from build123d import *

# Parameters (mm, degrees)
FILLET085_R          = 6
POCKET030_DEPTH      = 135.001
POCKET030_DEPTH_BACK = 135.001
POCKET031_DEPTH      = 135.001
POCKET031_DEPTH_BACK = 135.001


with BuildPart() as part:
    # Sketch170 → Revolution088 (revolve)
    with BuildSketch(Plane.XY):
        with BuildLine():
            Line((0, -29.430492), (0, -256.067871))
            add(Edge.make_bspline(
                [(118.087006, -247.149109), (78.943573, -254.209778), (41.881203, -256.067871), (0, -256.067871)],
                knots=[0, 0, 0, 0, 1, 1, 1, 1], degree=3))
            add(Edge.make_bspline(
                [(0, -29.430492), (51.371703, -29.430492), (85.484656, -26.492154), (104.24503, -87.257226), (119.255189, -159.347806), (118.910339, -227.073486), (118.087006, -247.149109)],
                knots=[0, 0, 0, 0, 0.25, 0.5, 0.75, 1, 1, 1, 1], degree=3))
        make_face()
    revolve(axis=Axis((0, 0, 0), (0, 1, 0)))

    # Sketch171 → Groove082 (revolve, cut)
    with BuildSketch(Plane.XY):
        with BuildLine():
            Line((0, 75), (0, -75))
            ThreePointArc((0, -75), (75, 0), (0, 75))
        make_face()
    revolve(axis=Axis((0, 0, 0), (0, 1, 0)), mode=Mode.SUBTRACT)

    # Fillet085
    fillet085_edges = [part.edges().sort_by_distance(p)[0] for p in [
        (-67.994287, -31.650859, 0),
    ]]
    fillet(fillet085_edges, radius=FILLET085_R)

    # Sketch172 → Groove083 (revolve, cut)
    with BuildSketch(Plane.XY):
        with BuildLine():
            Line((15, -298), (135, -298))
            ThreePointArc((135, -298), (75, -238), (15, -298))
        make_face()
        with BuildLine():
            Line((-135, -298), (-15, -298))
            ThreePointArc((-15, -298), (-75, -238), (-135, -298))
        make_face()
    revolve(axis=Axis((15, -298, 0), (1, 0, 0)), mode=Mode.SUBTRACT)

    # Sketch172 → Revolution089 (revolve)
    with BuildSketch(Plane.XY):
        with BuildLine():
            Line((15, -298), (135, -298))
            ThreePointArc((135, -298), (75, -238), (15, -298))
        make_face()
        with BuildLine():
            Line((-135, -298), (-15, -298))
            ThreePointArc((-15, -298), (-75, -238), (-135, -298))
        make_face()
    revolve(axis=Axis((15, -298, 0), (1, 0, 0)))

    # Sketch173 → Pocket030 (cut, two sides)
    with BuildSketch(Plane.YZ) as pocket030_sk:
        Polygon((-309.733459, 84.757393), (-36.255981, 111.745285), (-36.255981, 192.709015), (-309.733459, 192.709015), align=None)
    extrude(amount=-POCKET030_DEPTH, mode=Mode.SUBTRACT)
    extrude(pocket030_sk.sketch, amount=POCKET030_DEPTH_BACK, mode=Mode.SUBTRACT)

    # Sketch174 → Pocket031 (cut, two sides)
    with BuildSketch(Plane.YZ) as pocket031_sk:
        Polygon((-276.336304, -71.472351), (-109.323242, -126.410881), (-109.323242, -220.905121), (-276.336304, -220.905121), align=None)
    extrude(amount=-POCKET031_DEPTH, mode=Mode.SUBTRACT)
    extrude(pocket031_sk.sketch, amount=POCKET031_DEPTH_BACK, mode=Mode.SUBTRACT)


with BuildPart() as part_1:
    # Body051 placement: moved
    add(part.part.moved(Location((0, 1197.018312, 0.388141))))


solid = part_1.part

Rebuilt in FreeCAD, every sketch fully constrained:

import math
import FreeCAD as App
import Part
import Sketcher
Q = App.Units.Quantity


def edges_at(feature, points):
    """Names of the edges that pass closest to the given points."""
    edges = feature.Shape.Edges
    near = lambda p: min(range(len(edges)), key=lambda i: edges[i].distToShape(Part.Vertex(*p))[0])
    return sorted({f"Edge{near(p) + 1}" for p in points})


def add_polygon(sketch, points):
    """Adds a closed chain of lines whose ends are joined by coincident constraints."""
    first, n = sketch.GeometryCount, len(points)
    for a, b in zip(points, points[1:] + points[:1]):
        sketch.addGeometry(Part.LineSegment(App.Vector(*a, 0), App.Vector(*b, 0)), False)
    for i in range(n):
        sketch.addConstraint(Sketcher.Constraint("Coincident", first + i, 2, first + (i + 1) % n, 1))

doc = App.newDocument("Part")
body = doc.addObject("PartDesign::Body", "Body")

sketch1 = body.newObject("Sketcher::SketchObject", "Sketch")
sketch1.AttachmentSupport = (doc.getObject("XY_Plane"), [""])
sketch1.MapMode = "FlatFace"
sketch1.addGeometry([
    Part.LineSegment(App.Vector(0, -29.430492, 0), App.Vector(0, -256.067871, 0)),
    Part.BSplineCurve([App.Vector(118.087006, -247.149109, 0), App.Vector(78.943573, -254.209778, 0), App.Vector(41.881203, -256.067871, 0), App.Vector(0, -256.067871, 0)], [4, 4], [0, 1], False, 3, [1, 1, 1, 1], False),
    Part.BSplineCurve([App.Vector(0, -29.430492, 0), App.Vector(51.371703, -29.430492, 0), App.Vector(85.484656, -26.492154, 0), App.Vector(104.24503, -87.257226, 0), App.Vector(119.255189, -159.347806, 0), App.Vector(118.910339, -227.073486, 0), App.Vector(118.087006, -247.149109, 0)], [4, 1, 1, 1, 4], [0, 0.25, 0.5, 0.75, 1], False, 3, [1, 1, 1, 1, 1, 1, 1], False),
], False)
sketch1.addConstraint([
    Sketcher.Constraint("Block", 1),
    Sketcher.Constraint("Block", 2),
    Sketcher.Constraint("Coincident", 0, 2, 1, 2),
    Sketcher.Constraint("Coincident", 2, 1, 0, 1),
])
revolution = body.newObject("PartDesign::Revolution", "Revolution")
revolution.Profile = sketch1
revolution.ReferenceAxis = (sketch1, ["V_Axis"])
revolution.Angle = 360

sketch2 = body.newObject("Sketcher::SketchObject", "Sketch001")
sketch2.AttachmentSupport = (doc.getObject("XY_Plane"), [""])
sketch2.MapMode = "FlatFace"
sketch2.addGeometry([
    Part.LineSegment(App.Vector(0, 75, 0), App.Vector(0, -75, 0)),
    Part.ArcOfCircle(Part.Circle(App.Vector(0, 0, 0), App.Vector(0, 0, 1), 75), math.radians(-90), math.radians(90)),
], False)
sketch2.addConstraint([
    Sketcher.Constraint("Coincident", 0, 1, 1, 2),
    Sketcher.Constraint("Coincident", 1, 1, 0, 2),
    Sketcher.Constraint("Vertical", 0),
    Sketcher.Constraint("Coincident", 1, 3, -1, 1),
    Sketcher.Constraint("PointOnObject", 0, 1, -2),
    Sketcher.Constraint("Radius", 1, Q("75 mm")),
])
groove = body.newObject("PartDesign::Groove", "Groove")
groove.Profile = sketch2
groove.ReferenceAxis = (sketch2, ["V_Axis"])
groove.Angle = 360
doc.recompute()

fillet = body.newObject("PartDesign::Fillet", "Fillet")
fillet.Base = (groove, edges_at(groove, [(-67.994, -31.651, 0)]))
fillet.Radius = 6

sketch3 = body.newObject("Sketcher::SketchObject", "Sketch002")
sketch3.AttachmentSupport = (doc.getObject("XY_Plane"), [""])
sketch3.MapMode = "FlatFace"
sketch3.addGeometry([
    Part.LineSegment(App.Vector(15, -298, 0), App.Vector(135, -298, 0)),
    Part.ArcOfCircle(Part.Circle(App.Vector(75, -298, 0), App.Vector(0, 0, 1), 60), math.radians(0), math.radians(180)),
    Part.LineSegment(App.Vector(-135, -298, 0), App.Vector(-15, -298, 0)),
    Part.ArcOfCircle(Part.Circle(App.Vector(-75, -298, 0), App.Vector(0, 0, 1), 60), math.radians(0), math.radians(180)),
], False)
sketch3.addGeometry(Part.LineSegment(App.Vector(-135, -298, 0), App.Vector(135, -298, 0)), True)
sketch3.addConstraint([
    Sketcher.Constraint("Coincident", 0, 1, 1, 2),
    Sketcher.Constraint("Coincident", 1, 1, 0, 2),
    Sketcher.Constraint("Coincident", 2, 1, 3, 2),
    Sketcher.Constraint("Coincident", 3, 1, 2, 2),
    Sketcher.Constraint("Horizontal", 0),
    Sketcher.Constraint("Horizontal", 2),
    Sketcher.Constraint("Horizontal", 4),
    Sketcher.Constraint("Coincident", 4, 1, 2, 1),
    Sketcher.Constraint("Coincident", 4, 2, 1, 1),
    Sketcher.Constraint("Equal", 1, 3),
    Sketcher.Constraint("Symmetric", 1, 3, 3, 3, -2),
    Sketcher.Constraint("Horizontal", 3, 3, 0, 1),
    Sketcher.Constraint("Radius", 1, Q("60 mm")),
    Sketcher.Constraint("DistanceX", 4, 1, 4, 2, Q("270 mm")),
    Sketcher.Constraint("DistanceY", 1, 3, -1, 1, Q("298 mm")),
])
groove2 = body.newObject("PartDesign::Groove", "Groove001")
groove2.Profile = sketch3
groove2.ReferenceAxis = (sketch3, ["Axis0"])
groove2.Angle = 360

sketch4 = body.newObject("Sketcher::SketchObject", "Sketch003")
sketch4.AttachmentSupport = (doc.getObject("XY_Plane"), [""])
sketch4.MapMode = "FlatFace"
sketch4.addGeometry([
    Part.LineSegment(App.Vector(15, -298, 0), App.Vector(135, -298, 0)),
    Part.ArcOfCircle(Part.Circle(App.Vector(75, -298, 0), App.Vector(0, 0, 1), 60), math.radians(0), math.radians(180)),
    Part.LineSegment(App.Vector(-135, -298, 0), App.Vector(-15, -298, 0)),
    Part.ArcOfCircle(Part.Circle(App.Vector(-75, -298, 0), App.Vector(0, 0, 1), 60), math.radians(0), math.radians(180)),
], False)
sketch4.addGeometry(Part.LineSegment(App.Vector(-135, -298, 0), App.Vector(135, -298, 0)), True)
sketch4.addConstraint([
    Sketcher.Constraint("Coincident", 0, 1, 1, 2),
    Sketcher.Constraint("Coincident", 1, 1, 0, 2),
    Sketcher.Constraint("Coincident", 2, 1, 3, 2),
    Sketcher.Constraint("Coincident", 3, 1, 2, 2),
    Sketcher.Constraint("Horizontal", 0),
    Sketcher.Constraint("Horizontal", 2),
    Sketcher.Constraint("Horizontal", 4),
    Sketcher.Constraint("Coincident", 4, 1, 2, 1),
    Sketcher.Constraint("Coincident", 4, 2, 1, 1),
    Sketcher.Constraint("Equal", 1, 3),
    Sketcher.Constraint("Symmetric", 1, 3, 3, 3, -2),
    Sketcher.Constraint("Horizontal", 3, 3, 0, 1),
    Sketcher.Constraint("Radius", 1, Q("60 mm")),
    Sketcher.Constraint("DistanceX", 4, 1, 4, 2, Q("270 mm")),
    Sketcher.Constraint("DistanceY", 1, 3, -1, 1, Q("298 mm")),
])
revolution2 = body.newObject("PartDesign::Revolution", "Revolution001")
revolution2.Profile = sketch4
revolution2.ReferenceAxis = (sketch4, ["Axis0"])
revolution2.Angle = 360

sketch5 = body.newObject("Sketcher::SketchObject", "Sketch004")
sketch5.AttachmentSupport = (doc.getObject("YZ_Plane"), [""])
sketch5.MapMode = "FlatFace"
add_polygon(sketch5, [(-310, 85), (-36, 112), (-36, 193), (-310, 193)])
sketch5.addConstraint([
    Sketcher.Constraint("Vertical", 1),
    Sketcher.Constraint("Horizontal", 2),
    Sketcher.Constraint("Vertical", 3),
    Sketcher.Constraint("DistanceY", 1, 1, 1, 2, Q("80.96373 mm")),
    Sketcher.Constraint("DistanceY", 3, 2, 3, 1, Q("107.951622 mm")),
    Sketcher.Constraint("Distance", 0, Q("274.80589 mm")),
    Sketcher.Constraint("DistanceX", 0, 2, -1, 1, Q("36.255981 mm")),
    Sketcher.Constraint("DistanceY", -1, 1, 0, 2, Q("111.745285 mm")),
])
pocket1 = body.newObject("PartDesign::Pocket", "Pocket")
pocket1.Profile = sketch5
pocket1.Type = "ThroughAll"
pocket1.Midplane = True

sketch6 = body.newObject("Sketcher::SketchObject", "Sketch005")
sketch6.AttachmentSupport = (doc.getObject("YZ_Plane"), [""])
sketch6.MapMode = "FlatFace"
add_polygon(sketch6, [(-109, -126), (-276, -71), (-276, -221), (-109, -221)])
sketch6.addConstraint([
    Sketcher.Constraint("Vertical", 1),
    Sketcher.Constraint("Horizontal", 2),
    Sketcher.Constraint("Vertical", 3),
    Sketcher.Constraint("DistanceX", 2, 1, 2, 2, Q("167.013062 mm")),
    Sketcher.Constraint("DistanceY", 1, 2, 1, 1, Q("149.43277 mm")),
    Sketcher.Constraint("DistanceY", 3, 1, 3, 2, Q("94.49424 mm")),
    Sketcher.Constraint("DistanceY", 0, 2, -1, 1, Q("71.472351 mm")),
    Sketcher.Constraint("DistanceX", 2, 2, -1, 1, Q("109.323242 mm")),
])
pocket2 = body.newObject("PartDesign::Pocket", "Pocket001")
pocket2.Profile = sketch6
pocket2.Type = "ThroughAll"
pocket2.Midplane = True
body2 = doc.addObject("PartDesign::Body", "Body001")
doc.recompute()

body.Placement = App.Placement(App.Vector(0, 1197.018312, 0.388141), App.Rotation(App.Vector(0, 0, 1), 0))
boolean = body2.newObject("PartDesign::Boolean", "Boolean")
boolean.Type = "Fuse"
boolean.addObjects([body])

doc.recompute()
